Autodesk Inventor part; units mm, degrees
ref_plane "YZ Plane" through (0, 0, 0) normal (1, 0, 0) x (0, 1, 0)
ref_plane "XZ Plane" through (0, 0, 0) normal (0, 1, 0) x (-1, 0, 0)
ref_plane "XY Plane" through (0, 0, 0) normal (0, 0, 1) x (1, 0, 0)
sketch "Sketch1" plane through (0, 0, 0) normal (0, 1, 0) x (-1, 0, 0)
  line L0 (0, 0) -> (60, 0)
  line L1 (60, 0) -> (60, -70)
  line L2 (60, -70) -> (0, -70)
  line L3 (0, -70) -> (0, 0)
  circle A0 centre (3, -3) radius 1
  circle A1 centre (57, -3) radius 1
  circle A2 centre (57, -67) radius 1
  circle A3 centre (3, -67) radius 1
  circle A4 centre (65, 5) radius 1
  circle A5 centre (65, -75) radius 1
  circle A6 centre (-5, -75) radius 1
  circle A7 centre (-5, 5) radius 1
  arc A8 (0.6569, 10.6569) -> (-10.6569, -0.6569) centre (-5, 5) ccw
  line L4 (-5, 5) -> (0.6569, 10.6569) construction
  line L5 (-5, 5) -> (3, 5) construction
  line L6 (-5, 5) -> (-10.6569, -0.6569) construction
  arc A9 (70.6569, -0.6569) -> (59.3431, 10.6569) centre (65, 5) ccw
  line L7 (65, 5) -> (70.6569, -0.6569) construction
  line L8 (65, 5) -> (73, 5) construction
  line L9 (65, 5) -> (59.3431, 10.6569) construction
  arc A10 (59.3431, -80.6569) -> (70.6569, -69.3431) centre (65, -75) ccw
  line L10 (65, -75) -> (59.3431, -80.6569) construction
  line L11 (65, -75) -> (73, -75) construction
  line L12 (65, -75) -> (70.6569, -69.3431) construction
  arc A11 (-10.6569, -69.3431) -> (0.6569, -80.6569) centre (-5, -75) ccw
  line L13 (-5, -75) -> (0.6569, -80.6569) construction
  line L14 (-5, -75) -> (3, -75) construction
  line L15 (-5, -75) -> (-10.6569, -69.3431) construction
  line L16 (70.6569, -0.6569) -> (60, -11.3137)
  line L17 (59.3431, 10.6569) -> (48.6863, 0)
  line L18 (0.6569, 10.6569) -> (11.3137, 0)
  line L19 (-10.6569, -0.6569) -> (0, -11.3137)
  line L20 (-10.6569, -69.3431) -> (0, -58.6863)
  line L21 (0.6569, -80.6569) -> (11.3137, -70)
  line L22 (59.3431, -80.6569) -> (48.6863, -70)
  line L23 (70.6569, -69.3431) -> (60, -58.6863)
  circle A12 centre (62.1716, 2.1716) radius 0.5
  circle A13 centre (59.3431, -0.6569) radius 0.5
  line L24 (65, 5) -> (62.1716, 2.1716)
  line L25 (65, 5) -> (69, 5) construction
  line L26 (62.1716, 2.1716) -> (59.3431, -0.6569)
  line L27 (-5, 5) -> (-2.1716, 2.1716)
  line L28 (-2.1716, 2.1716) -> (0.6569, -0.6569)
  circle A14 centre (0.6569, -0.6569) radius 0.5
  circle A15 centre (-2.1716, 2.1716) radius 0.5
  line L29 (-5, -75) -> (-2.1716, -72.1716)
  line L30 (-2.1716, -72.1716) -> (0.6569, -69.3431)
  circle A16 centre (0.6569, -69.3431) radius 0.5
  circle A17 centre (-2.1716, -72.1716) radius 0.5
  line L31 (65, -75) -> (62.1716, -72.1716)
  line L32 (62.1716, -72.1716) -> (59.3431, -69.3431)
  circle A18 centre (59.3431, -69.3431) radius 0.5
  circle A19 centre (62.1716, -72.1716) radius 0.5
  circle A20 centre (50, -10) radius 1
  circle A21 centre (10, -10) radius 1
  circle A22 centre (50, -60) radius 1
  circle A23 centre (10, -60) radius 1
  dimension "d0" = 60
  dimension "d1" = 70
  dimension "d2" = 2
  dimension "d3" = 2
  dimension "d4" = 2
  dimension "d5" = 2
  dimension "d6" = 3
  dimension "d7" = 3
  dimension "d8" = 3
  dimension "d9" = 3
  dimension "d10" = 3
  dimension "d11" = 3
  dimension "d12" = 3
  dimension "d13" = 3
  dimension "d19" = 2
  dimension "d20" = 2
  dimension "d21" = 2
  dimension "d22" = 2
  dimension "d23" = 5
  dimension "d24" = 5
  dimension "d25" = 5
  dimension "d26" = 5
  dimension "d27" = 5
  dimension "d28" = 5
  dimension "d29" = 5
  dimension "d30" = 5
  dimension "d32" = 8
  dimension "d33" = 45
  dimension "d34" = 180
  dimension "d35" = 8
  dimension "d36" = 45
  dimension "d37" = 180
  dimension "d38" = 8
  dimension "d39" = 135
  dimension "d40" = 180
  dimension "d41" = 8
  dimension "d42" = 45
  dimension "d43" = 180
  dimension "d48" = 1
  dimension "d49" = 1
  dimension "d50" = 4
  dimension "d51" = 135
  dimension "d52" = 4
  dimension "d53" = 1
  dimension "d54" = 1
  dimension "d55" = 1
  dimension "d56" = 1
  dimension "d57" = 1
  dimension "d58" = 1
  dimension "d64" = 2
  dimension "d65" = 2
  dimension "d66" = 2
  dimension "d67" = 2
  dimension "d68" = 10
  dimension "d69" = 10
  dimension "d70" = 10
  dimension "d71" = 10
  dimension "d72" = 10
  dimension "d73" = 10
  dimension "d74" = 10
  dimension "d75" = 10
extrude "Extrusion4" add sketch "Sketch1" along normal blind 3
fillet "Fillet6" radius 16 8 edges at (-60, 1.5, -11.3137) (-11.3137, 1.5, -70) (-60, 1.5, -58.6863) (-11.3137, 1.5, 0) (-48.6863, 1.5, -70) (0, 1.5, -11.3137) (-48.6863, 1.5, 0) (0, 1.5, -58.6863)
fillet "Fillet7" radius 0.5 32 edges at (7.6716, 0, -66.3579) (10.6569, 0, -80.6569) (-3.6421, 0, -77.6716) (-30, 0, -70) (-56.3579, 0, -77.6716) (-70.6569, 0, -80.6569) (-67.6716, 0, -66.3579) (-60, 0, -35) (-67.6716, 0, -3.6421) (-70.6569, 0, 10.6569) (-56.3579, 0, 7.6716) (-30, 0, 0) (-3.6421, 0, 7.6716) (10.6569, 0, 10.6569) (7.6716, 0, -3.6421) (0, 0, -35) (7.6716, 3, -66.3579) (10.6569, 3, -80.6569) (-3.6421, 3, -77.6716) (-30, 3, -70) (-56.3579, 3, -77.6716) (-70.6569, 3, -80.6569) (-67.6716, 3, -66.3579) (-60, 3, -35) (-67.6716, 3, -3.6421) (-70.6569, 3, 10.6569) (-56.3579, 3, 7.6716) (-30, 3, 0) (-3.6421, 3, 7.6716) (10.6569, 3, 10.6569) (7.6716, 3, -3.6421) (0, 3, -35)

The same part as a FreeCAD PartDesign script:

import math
import FreeCAD as App
import Part
import Sketcher

V = App.Vector


def edges_at(feature, points):
    """Names of the edges that pass closest to the given points."""
    edges = feature.Shape.Edges
    near = lambda p: min(range(len(edges)), key=lambda i: edges[i].distToShape(Part.Vertex(*p))[0])
    return sorted({f"Edge{near(p) + 1}" for p in points})

doc = App.newDocument("Part")
body = doc.addObject("PartDesign::Body", "Body")

sketch1 = doc.addObject("Sketcher::SketchObject", "Sketch")
body.addObject(sketch1)
sketch1.AttachmentSupport = (doc.XZ_Plane, [""])
sketch1.MapMode = "FlatFace"
sketch1.addGeometry([
    Part.LineSegment(V(10.7, -0.7, 0), V(0, -11.3, 0)),
    Part.LineSegment(V(0, -11.3, 0), V(0, -58.7, 0)),
    Part.LineSegment(V(0, -58.7, 0), V(10.7, -69.3, 0)),
    Part.ArcOfCircle(Part.Circle(V(5, -75, 0), V(0, 0, 1), 8), math.radians(-135), math.radians(45)),
    Part.LineSegment(V(-0.7, -80.7, 0), V(-11.3, -70, 0)),
    Part.LineSegment(V(-11.3, -70, 0), V(-48.7, -70, 0)),
    Part.LineSegment(V(-48.7, -70, 0), V(-59.3, -80.7, 0)),
    Part.ArcOfCircle(Part.Circle(V(-65, -75, 0), V(0, 0, 1), 8), math.radians(135), math.radians(315)),
    Part.LineSegment(V(-70.7, -69.3, 0), V(-60, -58.7, 0)),
    Part.LineSegment(V(-60, -58.7, 0), V(-60, -11.3, 0)),
    Part.LineSegment(V(-60, -11.3, 0), V(-70.7, -0.7, 0)),
    Part.ArcOfCircle(Part.Circle(V(-65, 5, 0), V(0, 0, 1), 8), math.radians(45), math.radians(225)),
    Part.LineSegment(V(-59.3, 10.7, 0), V(-48.7, 0, 0)),
    Part.LineSegment(V(-48.7, 0, 0), V(-11.3, 0, 0)),
    Part.LineSegment(V(-11.3, 0, 0), V(-0.7, 10.7, 0)),
    Part.ArcOfCircle(Part.Circle(V(5, 5, 0), V(0, 0, 1), 8), math.radians(-45), math.radians(135)),
    Part.Circle(V(5, 5, 0), V(0, 0, 1), 1),
    Part.ArcOfCircle(Part.Circle(V(2.2, 2.2, 0), V(0, 0, 1), 0.5), math.radians(-135), math.radians(45)),
    Part.ArcOfCircle(Part.Circle(V(2.2, 2.2, 0), V(0, 0, 1), 0.5), math.radians(45), math.radians(225)),
    Part.Circle(V(-0.7, -69.3, 0), V(0, 0, 1), 0.5),
    Part.Circle(V(-3, -67, 0), V(0, 0, 1), 1),
    Part.Circle(V(-10, -60, 0), V(0, 0, 1), 1),
    Part.Circle(V(-50, -60, 0), V(0, 0, 1), 1),
    Part.Circle(V(-59.3, -69.3, 0), V(0, 0, 1), 0.5),
    Part.Circle(V(-57, -67, 0), V(0, 0, 1), 1),
    Part.Circle(V(-3, -3, 0), V(0, 0, 1), 1),
    Part.Circle(V(-0.7, -0.7, 0), V(0, 0, 1), 0.5),
    Part.Circle(V(-10, -10, 0), V(0, 0, 1), 1),
    Part.Circle(V(-50, -10, 0), V(0, 0, 1), 1),
    Part.Circle(V(-57, -3, 0), V(0, 0, 1), 1),
    Part.Circle(V(-59.3, -0.7, 0), V(0, 0, 1), 0.5),
    Part.ArcOfCircle(Part.Circle(V(-62.2, 2.2, 0), V(0, 0, 1), 0.5), math.radians(-45), math.radians(135)),
    Part.ArcOfCircle(Part.Circle(V(-62.2, 2.2, 0), V(0, 0, 1), 0.5), math.radians(135), math.radians(315)),
    Part.Circle(V(-65, 5, 0), V(0, 0, 1), 1),
    Part.ArcOfCircle(Part.Circle(V(-62.2, -72.2, 0), V(0, 0, 1), 0.5), math.radians(-135), math.radians(45)),
    Part.ArcOfCircle(Part.Circle(V(-62.2, -72.2, 0), V(0, 0, 1), 0.5), math.radians(45), math.radians(225)),
    Part.Circle(V(-65, -75, 0), V(0, 0, 1), 1),
    Part.Circle(V(5, -75, 0), V(0, 0, 1), 1),
    Part.ArcOfCircle(Part.Circle(V(2.2, -72.2, 0), V(0, 0, 1), 0.5), math.radians(-45), math.radians(135)),
    Part.ArcOfCircle(Part.Circle(V(2.2, -72.2, 0), V(0, 0, 1), 0.5), math.radians(135), math.radians(315)),
], False)
sketch1.addConstraint([
    Sketcher.Constraint("Coincident", 0, 2, 1, 1),
    Sketcher.Constraint("Coincident", 1, 2, 2, 1),
    Sketcher.Constraint("Tangent", 2, 2, 3, 2),
    Sketcher.Constraint("Tangent", 3, 1, 4, 1),
    Sketcher.Constraint("Coincident", 4, 2, 5, 1),
    Sketcher.Constraint("Coincident", 5, 2, 6, 1),
    Sketcher.Constraint("Tangent", 6, 2, 7, 2),
    Sketcher.Constraint("Tangent", 7, 1, 8, 1),
    Sketcher.Constraint("Coincident", 8, 2, 9, 1),
    Sketcher.Constraint("Coincident", 9, 2, 10, 1),
    Sketcher.Constraint("Tangent", 10, 2, 11, 2),
    Sketcher.Constraint("Tangent", 11, 1, 12, 1),
    Sketcher.Constraint("Coincident", 12, 2, 13, 1),
    Sketcher.Constraint("Coincident", 13, 2, 14, 1),
    Sketcher.Constraint("Tangent", 14, 2, 15, 2),
    Sketcher.Constraint("Tangent", 15, 1, 0, 1),
    Sketcher.Constraint("Tangent", 17, 1, 18, 2),
    Sketcher.Constraint("Coincident", 18, 1, 17, 2),
    Sketcher.Constraint("Tangent", 31, 1, 32, 2),
    Sketcher.Constraint("Coincident", 32, 1, 31, 2),
    Sketcher.Constraint("Tangent", 34, 1, 35, 2),
    Sketcher.Constraint("Coincident", 35, 1, 34, 2),
    Sketcher.Constraint("Tangent", 38, 1, 39, 2),
    Sketcher.Constraint("Coincident", 39, 1, 38, 2),
    Sketcher.Constraint("Vertical", 1),
    Sketcher.Constraint("Horizontal", 5),
    Sketcher.Constraint("Vertical", 9),
    Sketcher.Constraint("Horizontal", 13),
    Sketcher.Constraint("Coincident", 16, 3, 15, 3),
    Sketcher.Constraint("Coincident", 33, 3, 11, 3),
    Sketcher.Constraint("Coincident", 36, 3, 7, 3),
    Sketcher.Constraint("Coincident", 37, 3, 3, 3),
    Sketcher.Constraint("Equal", 3, 7),
    Sketcher.Constraint("Equal", 7, 11),
    Sketcher.Constraint("Equal", 11, 15),
    Sketcher.Constraint("Equal", 18, 19),
    Sketcher.Constraint("Equal", 16, 20),
    Sketcher.Constraint("Equal", 20, 21),
    Sketcher.Constraint("Equal", 21, 22),
    Sketcher.Constraint("Equal", 19, 23),
    Sketcher.Constraint("Equal", 22, 24),
    Sketcher.Constraint("Equal", 24, 25),
    Sketcher.Constraint("Equal", 23, 26),
    Sketcher.Constraint("Equal", 25, 27),
    Sketcher.Constraint("Equal", 27, 28),
    Sketcher.Constraint("Equal", 28, 29),
    Sketcher.Constraint("Equal", 26, 30),
    Sketcher.Constraint("Equal", 30, 31),
    Sketcher.Constraint("Equal", 29, 33),
    Sketcher.Constraint("Equal", 32, 34),
    Sketcher.Constraint("Equal", 33, 36),
    Sketcher.Constraint("Equal", 36, 37),
    Sketcher.Constraint("Equal", 35, 38),
    Sketcher.Constraint("PointOnObject", 0, 2, -2),
    Sketcher.Constraint("PointOnObject", 12, 2, -1),
    Sketcher.Constraint("Perpendicular", 0, 2),
    Sketcher.Constraint("Parallel", 2, 4),
    Sketcher.Constraint("Perpendicular", 4, 6),
    Sketcher.Constraint("Parallel", 6, 8),
    Sketcher.Constraint("Perpendicular", 8, 10),
    Sketcher.Constraint("Parallel", 10, 12),
    Sketcher.Constraint("Perpendicular", 12, 14),
    Sketcher.Constraint("Horizontal", 3, 3, 7, 3),
    Sketcher.Constraint("Horizontal", 11, 3, 15, 3),
    Sketcher.Constraint("Horizontal", 21, 3, 22, 3),
    Sketcher.Constraint("Horizontal", 19, 3, 23, 3),
    Sketcher.Constraint("Horizontal", 20, 3, 24, 3),
    Sketcher.Constraint("Horizontal", 27, 3, 28, 3),
    Sketcher.Constraint("Horizontal", 25, 3, 29, 3),
    Sketcher.Constraint("Horizontal", 26, 3, 30, 3),
    Sketcher.Constraint("Horizontal", 18, 3, 31, 3),
    Sketcher.Constraint("Horizontal", 35, 3, 38, 3),
    Sketcher.Constraint("Horizontal", 23, 3, 2, 2),
    Sketcher.Constraint("Horizontal", 3, 1, 6, 2),
    Sketcher.Constraint("Horizontal", 1, 2, 8, 2),
    Sketcher.Constraint("Horizontal", 0, 2, 9, 2),
    Sketcher.Constraint("Horizontal", 30, 3, 10, 2),
    Sketcher.Constraint("Horizontal", 17, 1, 31, 1),
    Sketcher.Constraint("Horizontal", 18, 1, 32, 1),
    Sketcher.Constraint("Horizontal", 34, 1, 38, 1),
    Sketcher.Constraint("Horizontal", 35, 1, 39, 1),
    Sketcher.Constraint("Vertical", 7, 3, 11, 3),
    Sketcher.Constraint("Vertical", 20, 3, 25, 3),
    Sketcher.Constraint("Vertical", 19, 3, 26, 3),
    Sketcher.Constraint("Vertical", 21, 3, 27, 3),
    Sketcher.Constraint("Vertical", 22, 3, 28, 3),
    Sketcher.Constraint("Vertical", 24, 3, 29, 3),
    Sketcher.Constraint("Vertical", 23, 3, 30, 3),
    Sketcher.Constraint("Vertical", 32, 3, 34, 3),
    Sketcher.Constraint("Vertical", 18, 3, 38, 3),
    Sketcher.Constraint("Vertical", 26, 3, 3, 1),
    Sketcher.Constraint("Vertical", 30, 3, 6, 2),
    Sketcher.Constraint("Vertical", 5, 2, 12, 2),
    Sketcher.Constraint("Vertical", 32, 1, 34, 1),
    Sketcher.Constraint("Vertical", 31, 1, 35, 1),
    Sketcher.Constraint("Equal", 2, 4),
    Sketcher.Constraint("Diameter", 16, 2.0),
    Sketcher.Constraint("Diameter", 19, 1.0),
    Sketcher.Constraint("Radius", 3, 8.0),
    Sketcher.Constraint("DistanceX", -1, 1, 3, 3, 5.0),
    Sketcher.Constraint("DistanceX", 20, 3, -1, 1, 3.0),
    Sketcher.Constraint("DistanceX", 21, 3, -1, 1, 10.0),
    Sketcher.Constraint("DistanceY", 21, 3, -1, 1, 60.0),
    Sketcher.Constraint("DistanceY", 25, 3, -1, 1, 3.0),
    Sketcher.Constraint("DistanceY", 27, 3, -1, 1, 10.0),
    Sketcher.Constraint("DistanceY", 4, 2, -1, 1, 70.0),
    Sketcher.Constraint("DistanceX", 8, 2, -1, 1, 60.0),
    Sketcher.Constraint("DistanceY", 3, 3, 20, 3, 8.0),
    Sketcher.Constraint("DistanceX", 7, 3, 24, 3, 8.0),
    Sketcher.Constraint("DistanceX", 8, 2, 22, 3, 10.0),
    Sketcher.Constraint("DistanceX", -1, 1, 17, 1, 1.818),
    Sketcher.Constraint("DistanceY", -1, 1, 17, 1, 1.818),
    Sketcher.Constraint("DistanceX", 31, 1, -1, 1, 61.818),
    Sketcher.Constraint("DistanceY", 35, 1, -1, 1, 71.818),
    Sketcher.Constraint("DistanceX", 17, 1, 18, 1, 0.707),
    Sketcher.Constraint("DistanceX", -1, 1, 17, 3, 2.1716),
])
pad1 = doc.addObject("PartDesign::Pad", "Pad")
body.addObject(pad1)
pad1.Profile = sketch1
pad1.Length = 3
pad1.Reversed = True
doc.recompute()

fillet = doc.addObject("PartDesign::Fillet", "Fillet")
body.addObject(fillet)
fillet.Base = (pad1, edges_at(pad1, [
    (-60, 1.5, -11.314),
    (-11.314, 1.5, -70),
    (-60, 1.5, -58.686),
    (-11.314, 1.5, 0),
    (-48.686, 1.5, -70),
    (0, 1.5, -11.314),
    (-48.686, 1.5, 0),
    (0, 1.5, -58.686),
]))
fillet.Radius = 16
doc.recompute()

fillet2 = doc.addObject("PartDesign::Fillet", "Fillet001")
body.addObject(fillet2)
fillet2.Base = (fillet, edges_at(fillet, [
    (7.672, 0, -66.358),
    (10.657, 0, -80.657),
    (-3.642, 0, -77.672),
    (-30, 0, -70),
    (-56.358, 0, -77.672),
    (-70.657, 0, -80.657),
    (-67.672, 0, -66.358),
    (-60, 0, -35),
    (-67.672, 0, -3.642),
    (-70.657, 0, 10.657),
    (-56.358, 0, 7.672),
    (-30, 0, 0),
    (-3.642, 0, 7.672),
    (10.657, 0, 10.657),
    (7.672, 0, -3.642),
    (0, 0, -35),
    (7.672, 3, -66.358),
    (10.657, 3, -80.657),
    (-3.642, 3, -77.672),
    (-30, 3, -70),
    (-56.358, 3, -77.672),
    (-70.657, 3, -80.657),
    (-67.672, 3, -66.358),
    (-60, 3, -35),
    (-67.672, 3, -3.642),
    (-70.657, 3, 10.657),
    (-56.358, 3, 7.672),
    (-30, 3, 0),
    (-3.642, 3, 7.672),
    (10.657, 3, 10.657),
    (7.672, 3, -3.642),
    (0, 3, -35),
]))
fillet2.Radius = 0.5

doc.recompute()
